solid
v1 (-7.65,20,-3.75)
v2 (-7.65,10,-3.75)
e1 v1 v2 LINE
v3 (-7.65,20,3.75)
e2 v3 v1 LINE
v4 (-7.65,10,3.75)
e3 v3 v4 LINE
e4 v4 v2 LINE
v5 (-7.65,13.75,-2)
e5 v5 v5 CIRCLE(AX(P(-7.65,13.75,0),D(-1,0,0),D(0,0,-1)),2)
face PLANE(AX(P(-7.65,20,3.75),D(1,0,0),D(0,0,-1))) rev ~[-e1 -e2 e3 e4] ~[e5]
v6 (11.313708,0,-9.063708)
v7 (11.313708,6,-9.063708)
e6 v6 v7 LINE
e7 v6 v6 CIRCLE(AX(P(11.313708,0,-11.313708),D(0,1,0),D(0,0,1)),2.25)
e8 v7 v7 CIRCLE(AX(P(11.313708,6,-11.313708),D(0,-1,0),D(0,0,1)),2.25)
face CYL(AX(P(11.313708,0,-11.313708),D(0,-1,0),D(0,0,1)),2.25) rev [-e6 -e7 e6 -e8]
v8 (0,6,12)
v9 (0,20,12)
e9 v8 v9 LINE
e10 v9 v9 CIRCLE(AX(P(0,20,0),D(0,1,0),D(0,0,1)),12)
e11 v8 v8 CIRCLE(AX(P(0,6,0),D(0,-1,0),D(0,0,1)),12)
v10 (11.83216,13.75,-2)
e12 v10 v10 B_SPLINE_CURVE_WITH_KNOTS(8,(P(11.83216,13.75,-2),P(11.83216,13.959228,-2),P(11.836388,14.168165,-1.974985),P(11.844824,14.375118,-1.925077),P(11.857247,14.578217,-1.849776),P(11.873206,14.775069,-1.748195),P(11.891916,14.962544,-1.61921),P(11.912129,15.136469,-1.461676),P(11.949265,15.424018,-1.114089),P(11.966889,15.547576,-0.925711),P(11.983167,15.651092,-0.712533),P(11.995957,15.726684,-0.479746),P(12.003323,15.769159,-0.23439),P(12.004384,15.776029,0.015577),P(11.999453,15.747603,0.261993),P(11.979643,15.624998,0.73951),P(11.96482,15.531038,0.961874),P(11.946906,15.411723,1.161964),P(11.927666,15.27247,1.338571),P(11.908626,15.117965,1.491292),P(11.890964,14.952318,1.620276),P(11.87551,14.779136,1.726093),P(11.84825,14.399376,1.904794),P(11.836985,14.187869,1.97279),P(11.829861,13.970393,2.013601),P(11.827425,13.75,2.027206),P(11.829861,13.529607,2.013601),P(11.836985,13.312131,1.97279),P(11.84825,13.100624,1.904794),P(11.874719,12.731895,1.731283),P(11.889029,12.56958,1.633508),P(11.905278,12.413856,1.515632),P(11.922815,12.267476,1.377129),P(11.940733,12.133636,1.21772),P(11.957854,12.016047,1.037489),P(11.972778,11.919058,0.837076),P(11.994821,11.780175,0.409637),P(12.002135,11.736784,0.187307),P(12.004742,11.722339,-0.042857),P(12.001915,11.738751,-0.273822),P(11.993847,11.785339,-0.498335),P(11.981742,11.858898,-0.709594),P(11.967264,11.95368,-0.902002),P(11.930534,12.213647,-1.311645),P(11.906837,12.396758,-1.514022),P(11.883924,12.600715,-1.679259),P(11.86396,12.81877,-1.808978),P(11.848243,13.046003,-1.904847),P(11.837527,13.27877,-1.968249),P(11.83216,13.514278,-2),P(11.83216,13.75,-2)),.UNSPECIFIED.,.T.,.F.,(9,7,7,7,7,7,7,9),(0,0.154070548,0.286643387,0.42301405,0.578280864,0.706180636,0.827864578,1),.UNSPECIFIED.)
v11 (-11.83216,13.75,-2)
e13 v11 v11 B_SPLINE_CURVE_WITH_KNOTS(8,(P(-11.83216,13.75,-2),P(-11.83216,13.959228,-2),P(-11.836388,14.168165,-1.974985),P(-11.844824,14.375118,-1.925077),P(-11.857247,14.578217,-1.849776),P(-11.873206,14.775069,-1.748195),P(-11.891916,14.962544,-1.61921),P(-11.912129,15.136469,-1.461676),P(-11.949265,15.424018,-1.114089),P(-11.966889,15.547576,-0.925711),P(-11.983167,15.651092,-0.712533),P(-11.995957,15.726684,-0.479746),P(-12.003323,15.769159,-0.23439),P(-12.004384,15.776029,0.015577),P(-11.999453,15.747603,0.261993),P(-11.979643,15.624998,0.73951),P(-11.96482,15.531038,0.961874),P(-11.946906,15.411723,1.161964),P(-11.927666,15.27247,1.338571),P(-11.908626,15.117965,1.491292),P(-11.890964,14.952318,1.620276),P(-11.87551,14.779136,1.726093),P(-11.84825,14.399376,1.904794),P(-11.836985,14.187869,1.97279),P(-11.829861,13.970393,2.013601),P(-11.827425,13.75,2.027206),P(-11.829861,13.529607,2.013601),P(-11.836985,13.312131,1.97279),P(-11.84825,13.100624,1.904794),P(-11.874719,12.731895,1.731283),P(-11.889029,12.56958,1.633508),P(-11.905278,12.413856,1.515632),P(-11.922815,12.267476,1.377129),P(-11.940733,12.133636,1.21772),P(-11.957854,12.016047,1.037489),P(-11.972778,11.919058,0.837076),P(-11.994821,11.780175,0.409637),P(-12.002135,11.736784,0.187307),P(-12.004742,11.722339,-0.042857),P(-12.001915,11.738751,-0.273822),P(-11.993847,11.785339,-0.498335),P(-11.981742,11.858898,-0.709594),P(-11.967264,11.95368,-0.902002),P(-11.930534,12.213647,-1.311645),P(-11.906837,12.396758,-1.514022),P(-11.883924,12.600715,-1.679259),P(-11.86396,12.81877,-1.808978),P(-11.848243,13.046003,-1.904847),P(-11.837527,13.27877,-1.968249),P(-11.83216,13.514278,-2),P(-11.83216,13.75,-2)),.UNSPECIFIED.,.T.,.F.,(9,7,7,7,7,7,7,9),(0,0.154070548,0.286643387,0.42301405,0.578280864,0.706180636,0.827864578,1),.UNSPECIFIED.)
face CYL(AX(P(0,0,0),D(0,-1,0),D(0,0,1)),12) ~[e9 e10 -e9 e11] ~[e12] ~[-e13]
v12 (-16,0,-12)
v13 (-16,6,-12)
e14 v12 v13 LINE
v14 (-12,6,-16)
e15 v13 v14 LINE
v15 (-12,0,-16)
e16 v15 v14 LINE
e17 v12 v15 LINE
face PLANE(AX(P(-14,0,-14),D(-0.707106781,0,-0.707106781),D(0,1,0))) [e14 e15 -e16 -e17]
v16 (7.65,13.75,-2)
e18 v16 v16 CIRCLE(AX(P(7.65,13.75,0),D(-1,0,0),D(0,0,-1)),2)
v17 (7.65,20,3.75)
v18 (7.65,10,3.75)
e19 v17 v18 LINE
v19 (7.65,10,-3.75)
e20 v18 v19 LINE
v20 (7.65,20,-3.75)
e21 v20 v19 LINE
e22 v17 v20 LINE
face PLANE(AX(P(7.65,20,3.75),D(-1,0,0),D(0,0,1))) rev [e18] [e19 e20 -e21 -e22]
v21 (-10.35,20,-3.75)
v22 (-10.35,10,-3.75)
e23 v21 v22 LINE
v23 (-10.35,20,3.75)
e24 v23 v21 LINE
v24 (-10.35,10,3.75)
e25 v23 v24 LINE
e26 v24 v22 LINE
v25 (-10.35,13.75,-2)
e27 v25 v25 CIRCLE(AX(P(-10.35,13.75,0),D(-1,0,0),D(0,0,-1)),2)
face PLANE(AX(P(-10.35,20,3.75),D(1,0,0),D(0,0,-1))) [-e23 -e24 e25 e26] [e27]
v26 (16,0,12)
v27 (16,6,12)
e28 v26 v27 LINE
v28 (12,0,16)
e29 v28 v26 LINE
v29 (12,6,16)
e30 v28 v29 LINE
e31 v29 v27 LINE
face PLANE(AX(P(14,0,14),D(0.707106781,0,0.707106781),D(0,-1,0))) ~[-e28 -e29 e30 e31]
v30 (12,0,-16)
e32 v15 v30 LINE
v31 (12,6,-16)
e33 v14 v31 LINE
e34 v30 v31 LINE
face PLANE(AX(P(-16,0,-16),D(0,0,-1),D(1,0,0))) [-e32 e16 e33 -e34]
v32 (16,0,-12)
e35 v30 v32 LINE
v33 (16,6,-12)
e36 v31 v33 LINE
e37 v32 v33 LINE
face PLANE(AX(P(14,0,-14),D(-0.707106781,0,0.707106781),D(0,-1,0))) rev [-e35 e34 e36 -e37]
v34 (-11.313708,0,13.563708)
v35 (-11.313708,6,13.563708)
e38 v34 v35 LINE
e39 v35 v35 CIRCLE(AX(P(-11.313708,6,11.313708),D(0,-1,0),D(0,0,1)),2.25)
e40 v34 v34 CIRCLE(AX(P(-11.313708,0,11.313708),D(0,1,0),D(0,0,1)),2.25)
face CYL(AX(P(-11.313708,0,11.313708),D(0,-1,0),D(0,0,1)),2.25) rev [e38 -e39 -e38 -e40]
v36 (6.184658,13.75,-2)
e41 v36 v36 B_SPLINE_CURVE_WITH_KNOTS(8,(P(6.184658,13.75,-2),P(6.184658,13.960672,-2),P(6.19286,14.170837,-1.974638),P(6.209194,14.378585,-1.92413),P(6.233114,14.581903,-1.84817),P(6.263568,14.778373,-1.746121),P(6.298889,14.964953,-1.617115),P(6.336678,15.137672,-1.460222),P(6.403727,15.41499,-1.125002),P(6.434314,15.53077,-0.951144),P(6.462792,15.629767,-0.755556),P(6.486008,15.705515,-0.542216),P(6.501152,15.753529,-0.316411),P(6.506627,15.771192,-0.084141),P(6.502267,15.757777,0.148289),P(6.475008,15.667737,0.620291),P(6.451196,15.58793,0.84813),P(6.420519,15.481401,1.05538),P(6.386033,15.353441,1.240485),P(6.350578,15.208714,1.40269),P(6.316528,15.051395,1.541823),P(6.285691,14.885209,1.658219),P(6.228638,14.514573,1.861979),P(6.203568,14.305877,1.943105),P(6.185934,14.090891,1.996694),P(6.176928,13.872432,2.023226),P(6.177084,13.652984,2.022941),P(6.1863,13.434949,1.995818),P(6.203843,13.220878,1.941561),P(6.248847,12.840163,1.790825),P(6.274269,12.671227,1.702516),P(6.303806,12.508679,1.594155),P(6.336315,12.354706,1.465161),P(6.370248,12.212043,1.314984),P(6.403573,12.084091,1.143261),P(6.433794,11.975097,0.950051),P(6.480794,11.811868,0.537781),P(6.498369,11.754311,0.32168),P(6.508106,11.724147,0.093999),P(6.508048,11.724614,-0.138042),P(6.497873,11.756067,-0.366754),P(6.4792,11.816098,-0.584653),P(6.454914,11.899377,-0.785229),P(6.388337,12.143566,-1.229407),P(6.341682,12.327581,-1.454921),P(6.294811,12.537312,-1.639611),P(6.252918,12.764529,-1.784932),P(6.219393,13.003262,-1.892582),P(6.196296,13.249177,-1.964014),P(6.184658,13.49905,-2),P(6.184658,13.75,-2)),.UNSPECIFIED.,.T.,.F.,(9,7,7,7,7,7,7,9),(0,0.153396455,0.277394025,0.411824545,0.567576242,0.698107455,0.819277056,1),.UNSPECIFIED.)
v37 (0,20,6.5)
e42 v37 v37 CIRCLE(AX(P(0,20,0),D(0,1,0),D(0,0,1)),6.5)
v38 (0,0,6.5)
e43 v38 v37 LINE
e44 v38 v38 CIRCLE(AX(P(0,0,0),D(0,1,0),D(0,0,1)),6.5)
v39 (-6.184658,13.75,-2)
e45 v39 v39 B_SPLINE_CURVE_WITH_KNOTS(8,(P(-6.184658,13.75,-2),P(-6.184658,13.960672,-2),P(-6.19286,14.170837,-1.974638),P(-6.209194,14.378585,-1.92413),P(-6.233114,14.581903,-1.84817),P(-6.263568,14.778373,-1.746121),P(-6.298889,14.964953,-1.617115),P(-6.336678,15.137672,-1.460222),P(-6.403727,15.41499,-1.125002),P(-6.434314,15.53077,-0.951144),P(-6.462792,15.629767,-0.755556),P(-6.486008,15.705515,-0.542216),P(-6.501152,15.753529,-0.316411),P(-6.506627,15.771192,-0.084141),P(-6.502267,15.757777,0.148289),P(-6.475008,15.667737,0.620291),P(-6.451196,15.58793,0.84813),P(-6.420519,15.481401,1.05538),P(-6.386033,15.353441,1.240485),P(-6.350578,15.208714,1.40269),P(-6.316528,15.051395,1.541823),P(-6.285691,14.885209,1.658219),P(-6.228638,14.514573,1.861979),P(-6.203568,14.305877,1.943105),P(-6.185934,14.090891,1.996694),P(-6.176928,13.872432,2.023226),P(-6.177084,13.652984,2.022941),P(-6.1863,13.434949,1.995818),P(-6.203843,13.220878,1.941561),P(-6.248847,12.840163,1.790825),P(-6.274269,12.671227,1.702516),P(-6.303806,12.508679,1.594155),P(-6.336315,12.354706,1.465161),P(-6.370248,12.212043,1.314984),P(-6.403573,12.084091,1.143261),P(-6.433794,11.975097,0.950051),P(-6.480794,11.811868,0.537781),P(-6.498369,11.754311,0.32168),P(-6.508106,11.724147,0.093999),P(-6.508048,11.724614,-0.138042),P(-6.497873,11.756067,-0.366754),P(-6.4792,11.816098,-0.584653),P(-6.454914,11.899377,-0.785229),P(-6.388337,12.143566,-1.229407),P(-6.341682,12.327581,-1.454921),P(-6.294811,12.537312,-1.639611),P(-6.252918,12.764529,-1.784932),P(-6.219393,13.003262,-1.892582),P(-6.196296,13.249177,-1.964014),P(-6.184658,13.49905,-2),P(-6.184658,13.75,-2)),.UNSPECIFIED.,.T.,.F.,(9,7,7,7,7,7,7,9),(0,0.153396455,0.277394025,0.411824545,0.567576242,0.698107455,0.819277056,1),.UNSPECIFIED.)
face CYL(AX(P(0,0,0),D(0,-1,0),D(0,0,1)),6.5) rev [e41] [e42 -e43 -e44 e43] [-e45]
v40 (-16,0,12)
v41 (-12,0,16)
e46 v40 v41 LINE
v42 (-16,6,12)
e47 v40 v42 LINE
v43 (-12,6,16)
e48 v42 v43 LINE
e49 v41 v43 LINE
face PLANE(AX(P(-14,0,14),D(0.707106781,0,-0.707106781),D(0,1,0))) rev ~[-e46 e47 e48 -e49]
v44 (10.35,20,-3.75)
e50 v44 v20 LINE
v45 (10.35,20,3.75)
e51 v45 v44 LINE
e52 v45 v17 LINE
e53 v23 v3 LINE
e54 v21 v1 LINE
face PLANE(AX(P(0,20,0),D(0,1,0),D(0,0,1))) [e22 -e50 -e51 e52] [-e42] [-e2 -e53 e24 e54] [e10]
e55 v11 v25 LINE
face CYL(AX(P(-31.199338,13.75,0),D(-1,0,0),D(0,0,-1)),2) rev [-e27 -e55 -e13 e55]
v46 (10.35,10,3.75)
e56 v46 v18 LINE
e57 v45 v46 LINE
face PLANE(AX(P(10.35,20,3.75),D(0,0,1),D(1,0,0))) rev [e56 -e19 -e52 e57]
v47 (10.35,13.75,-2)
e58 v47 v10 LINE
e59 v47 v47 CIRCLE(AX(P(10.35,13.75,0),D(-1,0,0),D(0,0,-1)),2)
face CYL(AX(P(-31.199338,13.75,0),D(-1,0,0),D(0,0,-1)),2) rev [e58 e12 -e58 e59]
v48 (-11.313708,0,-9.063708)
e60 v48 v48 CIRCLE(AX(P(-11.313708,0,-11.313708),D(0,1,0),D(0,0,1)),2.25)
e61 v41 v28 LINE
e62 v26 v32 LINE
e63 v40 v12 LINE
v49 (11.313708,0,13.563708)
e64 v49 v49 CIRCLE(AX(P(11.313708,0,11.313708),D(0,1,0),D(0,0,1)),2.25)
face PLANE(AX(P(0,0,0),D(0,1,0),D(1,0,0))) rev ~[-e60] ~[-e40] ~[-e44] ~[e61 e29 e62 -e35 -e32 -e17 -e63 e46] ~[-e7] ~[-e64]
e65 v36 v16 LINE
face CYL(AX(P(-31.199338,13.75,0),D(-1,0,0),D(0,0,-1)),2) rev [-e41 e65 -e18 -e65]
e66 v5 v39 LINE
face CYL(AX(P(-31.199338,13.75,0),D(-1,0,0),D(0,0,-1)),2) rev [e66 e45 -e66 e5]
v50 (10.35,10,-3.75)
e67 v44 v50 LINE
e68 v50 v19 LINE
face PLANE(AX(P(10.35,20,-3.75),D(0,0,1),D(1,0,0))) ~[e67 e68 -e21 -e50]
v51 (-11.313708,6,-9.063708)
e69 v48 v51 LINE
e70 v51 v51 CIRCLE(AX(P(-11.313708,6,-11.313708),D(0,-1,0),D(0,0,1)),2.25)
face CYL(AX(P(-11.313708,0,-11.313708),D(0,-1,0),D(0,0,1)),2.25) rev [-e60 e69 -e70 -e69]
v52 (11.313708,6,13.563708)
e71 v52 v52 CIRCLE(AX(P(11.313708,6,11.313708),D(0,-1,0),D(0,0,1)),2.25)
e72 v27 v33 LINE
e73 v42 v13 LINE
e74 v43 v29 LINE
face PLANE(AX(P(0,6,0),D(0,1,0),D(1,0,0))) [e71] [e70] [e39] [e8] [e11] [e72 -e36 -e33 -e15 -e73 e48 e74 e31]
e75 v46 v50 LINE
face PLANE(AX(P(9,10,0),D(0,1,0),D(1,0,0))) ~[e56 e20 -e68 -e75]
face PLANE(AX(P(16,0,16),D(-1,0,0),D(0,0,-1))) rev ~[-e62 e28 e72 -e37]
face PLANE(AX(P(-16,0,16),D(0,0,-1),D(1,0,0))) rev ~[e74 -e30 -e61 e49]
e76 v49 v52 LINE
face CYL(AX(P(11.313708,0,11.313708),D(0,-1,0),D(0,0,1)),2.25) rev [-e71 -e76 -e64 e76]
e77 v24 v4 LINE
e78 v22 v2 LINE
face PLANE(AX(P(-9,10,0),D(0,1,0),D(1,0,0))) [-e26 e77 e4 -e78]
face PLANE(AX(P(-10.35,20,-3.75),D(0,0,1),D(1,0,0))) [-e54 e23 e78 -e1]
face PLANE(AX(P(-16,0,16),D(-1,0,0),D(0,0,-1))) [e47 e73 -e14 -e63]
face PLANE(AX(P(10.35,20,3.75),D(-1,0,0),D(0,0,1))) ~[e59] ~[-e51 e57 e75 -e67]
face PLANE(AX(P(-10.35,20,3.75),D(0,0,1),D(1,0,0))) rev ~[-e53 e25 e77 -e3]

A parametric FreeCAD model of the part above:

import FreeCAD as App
import Part
import Sketcher
from FreeCAD import Vector


def edges_at(feature, points):
    """Names of the edges that pass closest to the given points."""
    edges = feature.Shape.Edges
    near = lambda p: min(range(len(edges)), key=lambda i: edges[i].distToShape(Part.Vertex(*p))[0])
    return sorted({f"Edge{near(p) + 1}" for p in points})

doc = App.newDocument("Part")
body = doc.addObject("PartDesign::Body", "Body")

# Sketch on XZ plane
sketch1 = body.newObject("Sketcher::SketchObject", "Sketch")
sketch1.AttachmentSupport = (doc.getObject("XZ_Plane"), [""])
sketch1.MapMode = "FlatFace"
sketch1.addGeometry(Part.Circle(Vector(0, 0, 0), Vector(0, 0, 1), 12), False)
sketch1.addGeometry(Part.Circle(Vector(0, 0, 0), Vector(0, 0, 1), 6), False)
sketch1.addConstraint(Sketcher.Constraint("Coincident", 0, 3, -1, 1))
sketch1.addConstraint(Sketcher.Constraint("Coincident", 1, 3, -1, 1))
sketch1.addConstraint(Sketcher.Constraint("Diameter", 0, 24.0))
sketch1.addConstraint(Sketcher.Constraint("Diameter", 1, 13.0))
pad1 = body.newObject("PartDesign::Pad", "Pad")
pad1.Profile = sketch1
pad1.Length = 20
pad1.Reversed = True

# Sketch on XZ plane
sketch2 = body.newObject("Sketcher::SketchObject", "Sketch001")
sketch2.AttachmentSupport = (doc.getObject("XZ_Plane"), [""])
sketch2.MapMode = "FlatFace"
sketch2.addGeometry(Part.LineSegment(Vector(-16, -16, 0), Vector(-16, 16, 0)), False)
sketch2.addGeometry(Part.LineSegment(Vector(-16, 16, 0), Vector(16, 16, 0)), False)
sketch2.addGeometry(Part.LineSegment(Vector(16, 16, 0), Vector(16, -16, 0)), False)
sketch2.addGeometry(Part.LineSegment(Vector(16, -16, 0), Vector(-16, -16, 0)), False)
sketch2.addGeometry(Part.Circle(Vector(0, 0, 0), Vector(0, 0, 1), 6), False)
sketch2.addConstraint(Sketcher.Constraint("Coincident", 0, 2, 1, 1))
sketch2.addConstraint(Sketcher.Constraint("Coincident", 1, 2, 2, 1))
sketch2.addConstraint(Sketcher.Constraint("Coincident", 2, 2, 3, 1))
sketch2.addConstraint(Sketcher.Constraint("Coincident", 3, 2, 0, 1))
sketch2.addConstraint(Sketcher.Constraint("Vertical", 0))
sketch2.addConstraint(Sketcher.Constraint("Horizontal", 1))
sketch2.addConstraint(Sketcher.Constraint("Vertical", 2))
sketch2.addConstraint(Sketcher.Constraint("Horizontal", 3))
sketch2.addConstraint(Sketcher.Constraint("Coincident", 4, 3, -1, 1))
sketch2.addConstraint(Sketcher.Constraint("Symmetric", 0, 2, 2, 2, -1, 1))
sketch2.addConstraint(Sketcher.Constraint("Equal", 3, 0))
sketch2.addConstraint(Sketcher.Constraint("Diameter", 4, 13.0))
sketch2.addConstraint(Sketcher.Constraint("DistanceX", 1, 1, 1, 2, 32.0))
pad2 = body.newObject("PartDesign::Pad", "Pad001")
pad2.Profile = sketch2
pad2.Length = 6
pad2.Reversed = True

# Sketch on XZ plane
sketch3 = body.newObject("Sketcher::SketchObject", "Sketch002")
sketch3.AttachmentSupport = (doc.getObject("XZ_Plane"), [""])
sketch3.MapMode = "FlatFace"
sketch3.addGeometry(Part.Circle(Vector(-11.3, -11.3, 0), Vector(0, 0, 1), 2.2), False)
sketch3.addGeometry(Part.Circle(Vector(-11.3, 11.3, 0), Vector(0, 0, 1), 2.2), False)
sketch3.addGeometry(Part.Circle(Vector(11.3, 11.3, 0), Vector(0, 0, 1), 2.2), False)
sketch3.addGeometry(Part.Circle(Vector(11.3, -11.3, 0), Vector(0, 0, 1), 2.2), False)
sketch3.addConstraint(Sketcher.Constraint("Equal", 0, 1))
sketch3.addConstraint(Sketcher.Constraint("Equal", 1, 2))
sketch3.addConstraint(Sketcher.Constraint("Equal", 2, 3))
sketch3.addConstraint(Sketcher.Constraint("Symmetric", 0, 3, 2, 3, -1, 1))
sketch3.addConstraint(Sketcher.Constraint("Symmetric", 1, 3, 3, 3, -1, 1))
sketch3.addConstraint(Sketcher.Constraint("Symmetric", 1, 3, 2, 3, -2))
sketch3.addConstraint(Sketcher.Constraint("Diameter", 0, 4.5))
sketch3.addConstraint(Sketcher.Constraint("DistanceX", 0, 3, -1, 1, 11.313708))
sketch3.addConstraint(Sketcher.Constraint("DistanceY", 0, 3, -1, 1, 11.313708))
pocket1 = body.newObject("PartDesign::Pocket", "Pocket")
pocket1.Profile = sketch3
pocket1.Type = "ThroughAll"
doc.recompute()

chamfer = body.newObject("PartDesign::Chamfer", "Chamfer")
chamfer.Base = (pocket1, edges_at(pocket1, [
    (16, 3, 16),
    (16, 3, -16),
    (-16, 3, -16),
    (-16, 3, 16),
]))
chamfer.Size = 4

# Sketch on XZ plane
sketch4 = body.newObject("Sketcher::SketchObject", "Sketch003")
sketch4.AttachmentSupport = (doc.getObject("XZ_Plane"), [""])
sketch4.MapMode = "FlatFace"
sketch4.AttachmentOffset = App.Placement(Vector(0, 0, -20), App.Rotation())
sketch4.addGeometry(Part.LineSegment(Vector(-10.3, -3.8, 0), Vector(-10.3, 3.8, 0)), False)
sketch4.addGeometry(Part.LineSegment(Vector(-10.3, 3.8, 0), Vector(-7.7, 3.8, 0)), False)
sketch4.addGeometry(Part.LineSegment(Vector(-7.7, 3.8, 0), Vector(-7.7, -3.8, 0)), False)
sketch4.addGeometry(Part.LineSegment(Vector(-7.7, -3.8, 0), Vector(-10.3, -3.8, 0)), False)
sketch4.addConstraint(Sketcher.Constraint("Coincident", 0, 2, 1, 1))
sketch4.addConstraint(Sketcher.Constraint("Coincident", 1, 2, 2, 1))
sketch4.addConstraint(Sketcher.Constraint("Coincident", 2, 2, 3, 1))
sketch4.addConstraint(Sketcher.Constraint("Coincident", 3, 2, 0, 1))
sketch4.addConstraint(Sketcher.Constraint("Vertical", 0))
sketch4.addConstraint(Sketcher.Constraint("Horizontal", 1))
sketch4.addConstraint(Sketcher.Constraint("Vertical", 2))
sketch4.addConstraint(Sketcher.Constraint("Horizontal", 3))
sketch4.addConstraint(Sketcher.Constraint("DistanceX", 1, 1, 1, 2, 2.7))
sketch4.addConstraint(Sketcher.Constraint("DistanceY", 0, 1, 0, 2, 7.5))
sketch4.addConstraint(Sketcher.Constraint("DistanceX", 0, 2, -1, 1, 10.35))
sketch4.addConstraint(Sketcher.Constraint("DistanceY", -1, 1, 0, 2, 3.75))
pocket2 = body.newObject("PartDesign::Pocket", "Pocket001")
pocket2.Profile = sketch4
pocket2.Length = 10
pocket2.Reversed = True

# Sketch on YZ plane
sketch5 = body.newObject("Sketcher::SketchObject", "Sketch004")
sketch5.AttachmentSupport = (doc.getObject("YZ_Plane"), [""])
sketch5.MapMode = "FlatFace"
sketch5.addGeometry(Part.Circle(Vector(13.8, 0, 0), Vector(0, 0, 1), 2), False)
sketch5.addConstraint(Sketcher.Constraint("PointOnObject", 0, 3, -1))
sketch5.addConstraint(Sketcher.Constraint("Diameter", 0, 4.0))
sketch5.addConstraint(Sketcher.Constraint("DistanceX", -1, 1, 0, 3, 13.75))
pocket3 = body.newObject("PartDesign::Pocket", "Pocket002")
pocket3.Profile = sketch5
pocket3.Type = "ThroughAll"
pocket3.Midplane = True
doc.recompute()

mirrored = body.newObject("PartDesign::Mirrored", "Mirrored")
mirrored.Originals = [pocket2]
mirrored.MirrorPlane = (doc.getObject("YZ_Plane"), [""])
body.Tip = mirrored

doc.recompute()
